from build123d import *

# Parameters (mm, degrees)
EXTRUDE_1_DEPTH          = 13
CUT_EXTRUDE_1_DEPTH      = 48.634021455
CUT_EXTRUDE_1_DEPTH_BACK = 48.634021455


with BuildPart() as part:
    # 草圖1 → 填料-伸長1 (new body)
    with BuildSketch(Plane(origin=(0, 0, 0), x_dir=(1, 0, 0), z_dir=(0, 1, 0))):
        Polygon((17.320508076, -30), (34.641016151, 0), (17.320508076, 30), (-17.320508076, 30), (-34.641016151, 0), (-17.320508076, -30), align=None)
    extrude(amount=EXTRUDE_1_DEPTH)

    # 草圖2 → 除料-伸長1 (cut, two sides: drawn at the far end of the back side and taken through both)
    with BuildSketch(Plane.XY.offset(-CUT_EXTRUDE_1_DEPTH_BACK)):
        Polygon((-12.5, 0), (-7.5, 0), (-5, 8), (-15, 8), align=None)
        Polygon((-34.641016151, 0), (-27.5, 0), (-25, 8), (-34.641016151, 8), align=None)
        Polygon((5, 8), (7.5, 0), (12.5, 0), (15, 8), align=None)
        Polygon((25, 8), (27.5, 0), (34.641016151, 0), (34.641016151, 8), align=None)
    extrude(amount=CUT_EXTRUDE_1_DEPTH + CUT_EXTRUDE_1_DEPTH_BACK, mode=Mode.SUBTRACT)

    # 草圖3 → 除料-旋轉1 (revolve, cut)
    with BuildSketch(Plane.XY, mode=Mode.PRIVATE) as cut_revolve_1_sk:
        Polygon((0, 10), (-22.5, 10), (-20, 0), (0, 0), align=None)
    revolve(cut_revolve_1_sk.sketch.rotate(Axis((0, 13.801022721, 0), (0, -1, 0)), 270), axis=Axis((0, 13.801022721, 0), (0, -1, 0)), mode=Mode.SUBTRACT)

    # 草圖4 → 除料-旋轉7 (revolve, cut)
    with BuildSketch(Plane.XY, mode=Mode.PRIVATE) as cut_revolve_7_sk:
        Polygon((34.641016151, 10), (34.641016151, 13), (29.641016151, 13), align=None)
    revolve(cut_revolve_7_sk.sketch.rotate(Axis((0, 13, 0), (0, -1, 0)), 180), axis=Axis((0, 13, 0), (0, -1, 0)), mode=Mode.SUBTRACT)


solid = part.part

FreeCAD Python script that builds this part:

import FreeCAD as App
import Part
import Sketcher
from FreeCAD import Vector
Q = App.Units.Quantity


def add_polygon(sketch, points):
    """Adds a closed chain of lines whose ends are joined by coincident constraints."""
    first, n = sketch.GeometryCount, len(points)
    for a, b in zip(points, points[1:] + points[:1]):
        sketch.addGeometry(Part.LineSegment(App.Vector(*a, 0), App.Vector(*b, 0)), False)
    for i in range(n):
        sketch.addConstraint(Sketcher.Constraint("Coincident", first + i, 2, first + (i + 1) % n, 1))

doc = App.newDocument("Part")
params = doc.addObject("Spreadsheet::Sheet", "Params")
for row, (alias, value) in enumerate([
    ("pad1_length", "13 mm"),
    ("sketch2_width", "5 mm"),
    ("sketch2_width2", "10 mm"),
    ("sketch2_height", "8 mm"),
    ("sketch3_width", "20 mm"),
    ("sketch3_height", "10 mm"),
    ("sketch3_width2", "22.5 mm"),
    ("groove_angle", "360 deg"),
    ("sketch4_width", "5 mm"),
    ("sketch4_height", "3 mm"),
    ("groove2_angle", "360 deg"),
], start=1):
    params.set(f"A{row}", alias)
    params.set(f"B{row}", "=" + value)
    params.setAlias(f"B{row}", alias)

body = doc.addObject("PartDesign::Body", "Body")

sketch1 = doc.addObject("Sketcher::SketchObject", "Sketch")
body.addObject(sketch1)
sketch1.AttachmentSupport = (doc.XZ_Plane, [""])
sketch1.MapMode = "FlatFace"
add_polygon(sketch1, [(17.320508, 30), (34.641016, 0), (17.320508, -30), (-17.320508, -30), (-34.641016, 0), (-17.320508, 30)])
sketch1.addConstraint(Sketcher.Constraint("Horizontal", 2))
sketch1.addConstraint(Sketcher.Constraint("Horizontal", 5))
sketch1.addConstraint(Sketcher.Constraint("Symmetric", 0, 2, 3, 2, -1, 1))
sketch1.addConstraint(Sketcher.Constraint("Symmetric", 1, 2, 4, 2, -1, 1))
sketch1.addConstraint(Sketcher.Constraint("PointOnObject", 0, 2, -1))
sketch1.addConstraint(Sketcher.Constraint("Parallel", 0, 3))
sketch1.addConstraint(Sketcher.Constraint("Vertical", 2, 2, 4, 2))
sketch1.addConstraint(Sketcher.Constraint("Angle", 0, Q("-60 deg")))
sketch1.addConstraint(Sketcher.Constraint("DistanceY", 1, 2, -1, 1, 30.0))
sketch1.addConstraint(Sketcher.Constraint("DistanceX", 2, 2, 2, 1, 34.641016))
pad1 = doc.addObject("PartDesign::Pad", "Pad")
body.addObject(pad1)
pad1.Profile = sketch1
pad1.setExpression("Length", "Params.pad1_length")
pad1.Reversed = True

sketch2 = doc.addObject("Sketcher::SketchObject", "Sketch001")
body.addObject(sketch2)
sketch2.AttachmentSupport = (doc.XY_Plane, [""])
sketch2.MapMode = "FlatFace"
add_polygon(sketch2, [(-12.5, 0), (-7.5, 0), (-5, 8), (-15, 8)])
add_polygon(sketch2, [(-34.641016, 0), (-27.5, 0), (-25, 8), (-34.641016, 8)])
add_polygon(sketch2, [(5, 8), (7.5, 0), (12.5, 0), (15, 8)])
add_polygon(sketch2, [(25, 8), (27.5, 0), (34.641016, 0), (34.641016, 8)])
sketch2.addConstraint(Sketcher.Constraint("Horizontal", 0))
sketch2.addConstraint(Sketcher.Constraint("Horizontal", 2))
sketch2.addConstraint(Sketcher.Constraint("Horizontal", 4))
sketch2.addConstraint(Sketcher.Constraint("Horizontal", 6))
sketch2.addConstraint(Sketcher.Constraint("Vertical", 7))
sketch2.addConstraint(Sketcher.Constraint("Horizontal", 9))
sketch2.addConstraint(Sketcher.Constraint("Horizontal", 11))
sketch2.addConstraint(Sketcher.Constraint("Horizontal", 13))
sketch2.addConstraint(Sketcher.Constraint("Vertical", 14))
sketch2.addConstraint(Sketcher.Constraint("Horizontal", 15))
sketch2.addConstraint(Sketcher.Constraint("Symmetric", 0, 2, 8, 2, -1, 1))
sketch2.addConstraint(Sketcher.Constraint("Symmetric", 4, 2, 12, 2, -1, 1))
sketch2.addConstraint(Sketcher.Constraint("Symmetric", 3, 2, 9, 2, -2))
sketch2.addConstraint(Sketcher.Constraint("Symmetric", 2, 2, 10, 2, -2))
sketch2.addConstraint(Sketcher.Constraint("Symmetric", 7, 2, 13, 2, -2))
sketch2.addConstraint(Sketcher.Constraint("Symmetric", 5, 2, 15, 2, -2))
sketch2.addConstraint(Sketcher.Constraint("Parallel", 1, 5))
sketch2.addConstraint(Sketcher.Constraint("Parallel", 3, 8))
sketch2.addConstraint(Sketcher.Constraint("Parallel", 5, 10))
sketch2.addConstraint(Sketcher.Constraint("Horizontal", 2, 2, 5, 2))
sketch2.addConstraint(Sketcher.Constraint("DistanceX", 0, 1, 0, 2, 5.0))
sketch2.addConstraint(Sketcher.Constraint("DistanceX", 2, 2, 2, 1, 10.0))
sketch2.addConstraint(Sketcher.Constraint("DistanceY", 7, 2, 7, 1, 8.0))
sketch2.addConstraint(Sketcher.Constraint("DistanceX", 1, 2, -1, 1, 5.0))
sketch2.addConstraint(Sketcher.Constraint("DistanceX", 5, 2, -1, 1, 25.0))
sketch2.addConstraint(Sketcher.Constraint("DistanceX", 4, 1, 4, 2, 7.141016))
sketch2.setExpression("Constraints[36]", "Params.sketch2_width")
sketch2.setExpression("Constraints[37]", "Params.sketch2_width2")
sketch2.setExpression("Constraints[38]", "Params.sketch2_height")
pocket1 = doc.addObject("PartDesign::Pocket", "Pocket")
body.addObject(pocket1)
pocket1.Profile = sketch2
pocket1.Type = "ThroughAll"
pocket1.Midplane = True

sketch3 = doc.addObject("Sketcher::SketchObject", "Sketch002")
body.addObject(sketch3)
sketch3.AttachmentSupport = (doc.XY_Plane, [""])
sketch3.MapMode = "FlatFace"
add_polygon(sketch3, [(0, 10), (-22.5, 10), (-20, 0), (0, 0)])
sketch3.addConstraint(Sketcher.Constraint("Horizontal", 0))
sketch3.addConstraint(Sketcher.Constraint("Horizontal", 2))
sketch3.addConstraint(Sketcher.Constraint("Vertical", 3))
sketch3.addConstraint(Sketcher.Constraint("Coincident", 2, 2, -1, 1))
sketch3.addConstraint(Sketcher.Constraint("DistanceX", 2, 1, 2, 2, 20.0))
sketch3.addConstraint(Sketcher.Constraint("DistanceY", 3, 1, 3, 2, 10.0))
sketch3.addConstraint(Sketcher.Constraint("DistanceX", 0, 2, 0, 1, 22.5))
sketch3.setExpression("Constraints[8]", "Params.sketch3_width")
sketch3.setExpression("Constraints[9]", "Params.sketch3_height")
sketch3.setExpression("Constraints[10]", "Params.sketch3_width2")
groove = doc.addObject("PartDesign::Groove", "Groove")
body.addObject(groove)
groove.Profile = sketch3
groove.ReferenceAxis = (sketch3, ["V_Axis"])
groove.setExpression("Angle", "Params.groove_angle")

sketch4 = doc.addObject("Sketcher::SketchObject", "Sketch003")
body.addObject(sketch4)
sketch4.AttachmentSupport = (doc.XY_Plane, [""])
sketch4.MapMode = "FlatFace"
add_polygon(sketch4, [(34.641016, 10), (34.641016, 13), (29.641016, 13)])
sketch4.addConstraint(Sketcher.Constraint("Vertical", 0))
sketch4.addConstraint(Sketcher.Constraint("Horizontal", 1))
sketch4.addConstraint(Sketcher.Constraint("DistanceX", 1, 2, 1, 1, 5.0))
sketch4.addConstraint(Sketcher.Constraint("DistanceY", 0, 1, 0, 2, 3.0))
sketch4.addConstraint(Sketcher.Constraint("DistanceY", -1, 1, 0, 2, 13.0))
sketch4.addConstraint(Sketcher.Constraint("DistanceX", -1, 1, 0, 2, 34.641016))
sketch4.setExpression("Constraints[5]", "Params.sketch4_width")
sketch4.setExpression("Constraints[6]", "Params.sketch4_height")
groove2 = doc.addObject("PartDesign::Groove", "Groove001")
body.addObject(groove2)
groove2.Profile = sketch4
groove2.ReferenceAxis = (sketch4, ["V_Axis"])
groove2.setExpression("Angle", "Params.groove2_angle")

doc.recompute()
